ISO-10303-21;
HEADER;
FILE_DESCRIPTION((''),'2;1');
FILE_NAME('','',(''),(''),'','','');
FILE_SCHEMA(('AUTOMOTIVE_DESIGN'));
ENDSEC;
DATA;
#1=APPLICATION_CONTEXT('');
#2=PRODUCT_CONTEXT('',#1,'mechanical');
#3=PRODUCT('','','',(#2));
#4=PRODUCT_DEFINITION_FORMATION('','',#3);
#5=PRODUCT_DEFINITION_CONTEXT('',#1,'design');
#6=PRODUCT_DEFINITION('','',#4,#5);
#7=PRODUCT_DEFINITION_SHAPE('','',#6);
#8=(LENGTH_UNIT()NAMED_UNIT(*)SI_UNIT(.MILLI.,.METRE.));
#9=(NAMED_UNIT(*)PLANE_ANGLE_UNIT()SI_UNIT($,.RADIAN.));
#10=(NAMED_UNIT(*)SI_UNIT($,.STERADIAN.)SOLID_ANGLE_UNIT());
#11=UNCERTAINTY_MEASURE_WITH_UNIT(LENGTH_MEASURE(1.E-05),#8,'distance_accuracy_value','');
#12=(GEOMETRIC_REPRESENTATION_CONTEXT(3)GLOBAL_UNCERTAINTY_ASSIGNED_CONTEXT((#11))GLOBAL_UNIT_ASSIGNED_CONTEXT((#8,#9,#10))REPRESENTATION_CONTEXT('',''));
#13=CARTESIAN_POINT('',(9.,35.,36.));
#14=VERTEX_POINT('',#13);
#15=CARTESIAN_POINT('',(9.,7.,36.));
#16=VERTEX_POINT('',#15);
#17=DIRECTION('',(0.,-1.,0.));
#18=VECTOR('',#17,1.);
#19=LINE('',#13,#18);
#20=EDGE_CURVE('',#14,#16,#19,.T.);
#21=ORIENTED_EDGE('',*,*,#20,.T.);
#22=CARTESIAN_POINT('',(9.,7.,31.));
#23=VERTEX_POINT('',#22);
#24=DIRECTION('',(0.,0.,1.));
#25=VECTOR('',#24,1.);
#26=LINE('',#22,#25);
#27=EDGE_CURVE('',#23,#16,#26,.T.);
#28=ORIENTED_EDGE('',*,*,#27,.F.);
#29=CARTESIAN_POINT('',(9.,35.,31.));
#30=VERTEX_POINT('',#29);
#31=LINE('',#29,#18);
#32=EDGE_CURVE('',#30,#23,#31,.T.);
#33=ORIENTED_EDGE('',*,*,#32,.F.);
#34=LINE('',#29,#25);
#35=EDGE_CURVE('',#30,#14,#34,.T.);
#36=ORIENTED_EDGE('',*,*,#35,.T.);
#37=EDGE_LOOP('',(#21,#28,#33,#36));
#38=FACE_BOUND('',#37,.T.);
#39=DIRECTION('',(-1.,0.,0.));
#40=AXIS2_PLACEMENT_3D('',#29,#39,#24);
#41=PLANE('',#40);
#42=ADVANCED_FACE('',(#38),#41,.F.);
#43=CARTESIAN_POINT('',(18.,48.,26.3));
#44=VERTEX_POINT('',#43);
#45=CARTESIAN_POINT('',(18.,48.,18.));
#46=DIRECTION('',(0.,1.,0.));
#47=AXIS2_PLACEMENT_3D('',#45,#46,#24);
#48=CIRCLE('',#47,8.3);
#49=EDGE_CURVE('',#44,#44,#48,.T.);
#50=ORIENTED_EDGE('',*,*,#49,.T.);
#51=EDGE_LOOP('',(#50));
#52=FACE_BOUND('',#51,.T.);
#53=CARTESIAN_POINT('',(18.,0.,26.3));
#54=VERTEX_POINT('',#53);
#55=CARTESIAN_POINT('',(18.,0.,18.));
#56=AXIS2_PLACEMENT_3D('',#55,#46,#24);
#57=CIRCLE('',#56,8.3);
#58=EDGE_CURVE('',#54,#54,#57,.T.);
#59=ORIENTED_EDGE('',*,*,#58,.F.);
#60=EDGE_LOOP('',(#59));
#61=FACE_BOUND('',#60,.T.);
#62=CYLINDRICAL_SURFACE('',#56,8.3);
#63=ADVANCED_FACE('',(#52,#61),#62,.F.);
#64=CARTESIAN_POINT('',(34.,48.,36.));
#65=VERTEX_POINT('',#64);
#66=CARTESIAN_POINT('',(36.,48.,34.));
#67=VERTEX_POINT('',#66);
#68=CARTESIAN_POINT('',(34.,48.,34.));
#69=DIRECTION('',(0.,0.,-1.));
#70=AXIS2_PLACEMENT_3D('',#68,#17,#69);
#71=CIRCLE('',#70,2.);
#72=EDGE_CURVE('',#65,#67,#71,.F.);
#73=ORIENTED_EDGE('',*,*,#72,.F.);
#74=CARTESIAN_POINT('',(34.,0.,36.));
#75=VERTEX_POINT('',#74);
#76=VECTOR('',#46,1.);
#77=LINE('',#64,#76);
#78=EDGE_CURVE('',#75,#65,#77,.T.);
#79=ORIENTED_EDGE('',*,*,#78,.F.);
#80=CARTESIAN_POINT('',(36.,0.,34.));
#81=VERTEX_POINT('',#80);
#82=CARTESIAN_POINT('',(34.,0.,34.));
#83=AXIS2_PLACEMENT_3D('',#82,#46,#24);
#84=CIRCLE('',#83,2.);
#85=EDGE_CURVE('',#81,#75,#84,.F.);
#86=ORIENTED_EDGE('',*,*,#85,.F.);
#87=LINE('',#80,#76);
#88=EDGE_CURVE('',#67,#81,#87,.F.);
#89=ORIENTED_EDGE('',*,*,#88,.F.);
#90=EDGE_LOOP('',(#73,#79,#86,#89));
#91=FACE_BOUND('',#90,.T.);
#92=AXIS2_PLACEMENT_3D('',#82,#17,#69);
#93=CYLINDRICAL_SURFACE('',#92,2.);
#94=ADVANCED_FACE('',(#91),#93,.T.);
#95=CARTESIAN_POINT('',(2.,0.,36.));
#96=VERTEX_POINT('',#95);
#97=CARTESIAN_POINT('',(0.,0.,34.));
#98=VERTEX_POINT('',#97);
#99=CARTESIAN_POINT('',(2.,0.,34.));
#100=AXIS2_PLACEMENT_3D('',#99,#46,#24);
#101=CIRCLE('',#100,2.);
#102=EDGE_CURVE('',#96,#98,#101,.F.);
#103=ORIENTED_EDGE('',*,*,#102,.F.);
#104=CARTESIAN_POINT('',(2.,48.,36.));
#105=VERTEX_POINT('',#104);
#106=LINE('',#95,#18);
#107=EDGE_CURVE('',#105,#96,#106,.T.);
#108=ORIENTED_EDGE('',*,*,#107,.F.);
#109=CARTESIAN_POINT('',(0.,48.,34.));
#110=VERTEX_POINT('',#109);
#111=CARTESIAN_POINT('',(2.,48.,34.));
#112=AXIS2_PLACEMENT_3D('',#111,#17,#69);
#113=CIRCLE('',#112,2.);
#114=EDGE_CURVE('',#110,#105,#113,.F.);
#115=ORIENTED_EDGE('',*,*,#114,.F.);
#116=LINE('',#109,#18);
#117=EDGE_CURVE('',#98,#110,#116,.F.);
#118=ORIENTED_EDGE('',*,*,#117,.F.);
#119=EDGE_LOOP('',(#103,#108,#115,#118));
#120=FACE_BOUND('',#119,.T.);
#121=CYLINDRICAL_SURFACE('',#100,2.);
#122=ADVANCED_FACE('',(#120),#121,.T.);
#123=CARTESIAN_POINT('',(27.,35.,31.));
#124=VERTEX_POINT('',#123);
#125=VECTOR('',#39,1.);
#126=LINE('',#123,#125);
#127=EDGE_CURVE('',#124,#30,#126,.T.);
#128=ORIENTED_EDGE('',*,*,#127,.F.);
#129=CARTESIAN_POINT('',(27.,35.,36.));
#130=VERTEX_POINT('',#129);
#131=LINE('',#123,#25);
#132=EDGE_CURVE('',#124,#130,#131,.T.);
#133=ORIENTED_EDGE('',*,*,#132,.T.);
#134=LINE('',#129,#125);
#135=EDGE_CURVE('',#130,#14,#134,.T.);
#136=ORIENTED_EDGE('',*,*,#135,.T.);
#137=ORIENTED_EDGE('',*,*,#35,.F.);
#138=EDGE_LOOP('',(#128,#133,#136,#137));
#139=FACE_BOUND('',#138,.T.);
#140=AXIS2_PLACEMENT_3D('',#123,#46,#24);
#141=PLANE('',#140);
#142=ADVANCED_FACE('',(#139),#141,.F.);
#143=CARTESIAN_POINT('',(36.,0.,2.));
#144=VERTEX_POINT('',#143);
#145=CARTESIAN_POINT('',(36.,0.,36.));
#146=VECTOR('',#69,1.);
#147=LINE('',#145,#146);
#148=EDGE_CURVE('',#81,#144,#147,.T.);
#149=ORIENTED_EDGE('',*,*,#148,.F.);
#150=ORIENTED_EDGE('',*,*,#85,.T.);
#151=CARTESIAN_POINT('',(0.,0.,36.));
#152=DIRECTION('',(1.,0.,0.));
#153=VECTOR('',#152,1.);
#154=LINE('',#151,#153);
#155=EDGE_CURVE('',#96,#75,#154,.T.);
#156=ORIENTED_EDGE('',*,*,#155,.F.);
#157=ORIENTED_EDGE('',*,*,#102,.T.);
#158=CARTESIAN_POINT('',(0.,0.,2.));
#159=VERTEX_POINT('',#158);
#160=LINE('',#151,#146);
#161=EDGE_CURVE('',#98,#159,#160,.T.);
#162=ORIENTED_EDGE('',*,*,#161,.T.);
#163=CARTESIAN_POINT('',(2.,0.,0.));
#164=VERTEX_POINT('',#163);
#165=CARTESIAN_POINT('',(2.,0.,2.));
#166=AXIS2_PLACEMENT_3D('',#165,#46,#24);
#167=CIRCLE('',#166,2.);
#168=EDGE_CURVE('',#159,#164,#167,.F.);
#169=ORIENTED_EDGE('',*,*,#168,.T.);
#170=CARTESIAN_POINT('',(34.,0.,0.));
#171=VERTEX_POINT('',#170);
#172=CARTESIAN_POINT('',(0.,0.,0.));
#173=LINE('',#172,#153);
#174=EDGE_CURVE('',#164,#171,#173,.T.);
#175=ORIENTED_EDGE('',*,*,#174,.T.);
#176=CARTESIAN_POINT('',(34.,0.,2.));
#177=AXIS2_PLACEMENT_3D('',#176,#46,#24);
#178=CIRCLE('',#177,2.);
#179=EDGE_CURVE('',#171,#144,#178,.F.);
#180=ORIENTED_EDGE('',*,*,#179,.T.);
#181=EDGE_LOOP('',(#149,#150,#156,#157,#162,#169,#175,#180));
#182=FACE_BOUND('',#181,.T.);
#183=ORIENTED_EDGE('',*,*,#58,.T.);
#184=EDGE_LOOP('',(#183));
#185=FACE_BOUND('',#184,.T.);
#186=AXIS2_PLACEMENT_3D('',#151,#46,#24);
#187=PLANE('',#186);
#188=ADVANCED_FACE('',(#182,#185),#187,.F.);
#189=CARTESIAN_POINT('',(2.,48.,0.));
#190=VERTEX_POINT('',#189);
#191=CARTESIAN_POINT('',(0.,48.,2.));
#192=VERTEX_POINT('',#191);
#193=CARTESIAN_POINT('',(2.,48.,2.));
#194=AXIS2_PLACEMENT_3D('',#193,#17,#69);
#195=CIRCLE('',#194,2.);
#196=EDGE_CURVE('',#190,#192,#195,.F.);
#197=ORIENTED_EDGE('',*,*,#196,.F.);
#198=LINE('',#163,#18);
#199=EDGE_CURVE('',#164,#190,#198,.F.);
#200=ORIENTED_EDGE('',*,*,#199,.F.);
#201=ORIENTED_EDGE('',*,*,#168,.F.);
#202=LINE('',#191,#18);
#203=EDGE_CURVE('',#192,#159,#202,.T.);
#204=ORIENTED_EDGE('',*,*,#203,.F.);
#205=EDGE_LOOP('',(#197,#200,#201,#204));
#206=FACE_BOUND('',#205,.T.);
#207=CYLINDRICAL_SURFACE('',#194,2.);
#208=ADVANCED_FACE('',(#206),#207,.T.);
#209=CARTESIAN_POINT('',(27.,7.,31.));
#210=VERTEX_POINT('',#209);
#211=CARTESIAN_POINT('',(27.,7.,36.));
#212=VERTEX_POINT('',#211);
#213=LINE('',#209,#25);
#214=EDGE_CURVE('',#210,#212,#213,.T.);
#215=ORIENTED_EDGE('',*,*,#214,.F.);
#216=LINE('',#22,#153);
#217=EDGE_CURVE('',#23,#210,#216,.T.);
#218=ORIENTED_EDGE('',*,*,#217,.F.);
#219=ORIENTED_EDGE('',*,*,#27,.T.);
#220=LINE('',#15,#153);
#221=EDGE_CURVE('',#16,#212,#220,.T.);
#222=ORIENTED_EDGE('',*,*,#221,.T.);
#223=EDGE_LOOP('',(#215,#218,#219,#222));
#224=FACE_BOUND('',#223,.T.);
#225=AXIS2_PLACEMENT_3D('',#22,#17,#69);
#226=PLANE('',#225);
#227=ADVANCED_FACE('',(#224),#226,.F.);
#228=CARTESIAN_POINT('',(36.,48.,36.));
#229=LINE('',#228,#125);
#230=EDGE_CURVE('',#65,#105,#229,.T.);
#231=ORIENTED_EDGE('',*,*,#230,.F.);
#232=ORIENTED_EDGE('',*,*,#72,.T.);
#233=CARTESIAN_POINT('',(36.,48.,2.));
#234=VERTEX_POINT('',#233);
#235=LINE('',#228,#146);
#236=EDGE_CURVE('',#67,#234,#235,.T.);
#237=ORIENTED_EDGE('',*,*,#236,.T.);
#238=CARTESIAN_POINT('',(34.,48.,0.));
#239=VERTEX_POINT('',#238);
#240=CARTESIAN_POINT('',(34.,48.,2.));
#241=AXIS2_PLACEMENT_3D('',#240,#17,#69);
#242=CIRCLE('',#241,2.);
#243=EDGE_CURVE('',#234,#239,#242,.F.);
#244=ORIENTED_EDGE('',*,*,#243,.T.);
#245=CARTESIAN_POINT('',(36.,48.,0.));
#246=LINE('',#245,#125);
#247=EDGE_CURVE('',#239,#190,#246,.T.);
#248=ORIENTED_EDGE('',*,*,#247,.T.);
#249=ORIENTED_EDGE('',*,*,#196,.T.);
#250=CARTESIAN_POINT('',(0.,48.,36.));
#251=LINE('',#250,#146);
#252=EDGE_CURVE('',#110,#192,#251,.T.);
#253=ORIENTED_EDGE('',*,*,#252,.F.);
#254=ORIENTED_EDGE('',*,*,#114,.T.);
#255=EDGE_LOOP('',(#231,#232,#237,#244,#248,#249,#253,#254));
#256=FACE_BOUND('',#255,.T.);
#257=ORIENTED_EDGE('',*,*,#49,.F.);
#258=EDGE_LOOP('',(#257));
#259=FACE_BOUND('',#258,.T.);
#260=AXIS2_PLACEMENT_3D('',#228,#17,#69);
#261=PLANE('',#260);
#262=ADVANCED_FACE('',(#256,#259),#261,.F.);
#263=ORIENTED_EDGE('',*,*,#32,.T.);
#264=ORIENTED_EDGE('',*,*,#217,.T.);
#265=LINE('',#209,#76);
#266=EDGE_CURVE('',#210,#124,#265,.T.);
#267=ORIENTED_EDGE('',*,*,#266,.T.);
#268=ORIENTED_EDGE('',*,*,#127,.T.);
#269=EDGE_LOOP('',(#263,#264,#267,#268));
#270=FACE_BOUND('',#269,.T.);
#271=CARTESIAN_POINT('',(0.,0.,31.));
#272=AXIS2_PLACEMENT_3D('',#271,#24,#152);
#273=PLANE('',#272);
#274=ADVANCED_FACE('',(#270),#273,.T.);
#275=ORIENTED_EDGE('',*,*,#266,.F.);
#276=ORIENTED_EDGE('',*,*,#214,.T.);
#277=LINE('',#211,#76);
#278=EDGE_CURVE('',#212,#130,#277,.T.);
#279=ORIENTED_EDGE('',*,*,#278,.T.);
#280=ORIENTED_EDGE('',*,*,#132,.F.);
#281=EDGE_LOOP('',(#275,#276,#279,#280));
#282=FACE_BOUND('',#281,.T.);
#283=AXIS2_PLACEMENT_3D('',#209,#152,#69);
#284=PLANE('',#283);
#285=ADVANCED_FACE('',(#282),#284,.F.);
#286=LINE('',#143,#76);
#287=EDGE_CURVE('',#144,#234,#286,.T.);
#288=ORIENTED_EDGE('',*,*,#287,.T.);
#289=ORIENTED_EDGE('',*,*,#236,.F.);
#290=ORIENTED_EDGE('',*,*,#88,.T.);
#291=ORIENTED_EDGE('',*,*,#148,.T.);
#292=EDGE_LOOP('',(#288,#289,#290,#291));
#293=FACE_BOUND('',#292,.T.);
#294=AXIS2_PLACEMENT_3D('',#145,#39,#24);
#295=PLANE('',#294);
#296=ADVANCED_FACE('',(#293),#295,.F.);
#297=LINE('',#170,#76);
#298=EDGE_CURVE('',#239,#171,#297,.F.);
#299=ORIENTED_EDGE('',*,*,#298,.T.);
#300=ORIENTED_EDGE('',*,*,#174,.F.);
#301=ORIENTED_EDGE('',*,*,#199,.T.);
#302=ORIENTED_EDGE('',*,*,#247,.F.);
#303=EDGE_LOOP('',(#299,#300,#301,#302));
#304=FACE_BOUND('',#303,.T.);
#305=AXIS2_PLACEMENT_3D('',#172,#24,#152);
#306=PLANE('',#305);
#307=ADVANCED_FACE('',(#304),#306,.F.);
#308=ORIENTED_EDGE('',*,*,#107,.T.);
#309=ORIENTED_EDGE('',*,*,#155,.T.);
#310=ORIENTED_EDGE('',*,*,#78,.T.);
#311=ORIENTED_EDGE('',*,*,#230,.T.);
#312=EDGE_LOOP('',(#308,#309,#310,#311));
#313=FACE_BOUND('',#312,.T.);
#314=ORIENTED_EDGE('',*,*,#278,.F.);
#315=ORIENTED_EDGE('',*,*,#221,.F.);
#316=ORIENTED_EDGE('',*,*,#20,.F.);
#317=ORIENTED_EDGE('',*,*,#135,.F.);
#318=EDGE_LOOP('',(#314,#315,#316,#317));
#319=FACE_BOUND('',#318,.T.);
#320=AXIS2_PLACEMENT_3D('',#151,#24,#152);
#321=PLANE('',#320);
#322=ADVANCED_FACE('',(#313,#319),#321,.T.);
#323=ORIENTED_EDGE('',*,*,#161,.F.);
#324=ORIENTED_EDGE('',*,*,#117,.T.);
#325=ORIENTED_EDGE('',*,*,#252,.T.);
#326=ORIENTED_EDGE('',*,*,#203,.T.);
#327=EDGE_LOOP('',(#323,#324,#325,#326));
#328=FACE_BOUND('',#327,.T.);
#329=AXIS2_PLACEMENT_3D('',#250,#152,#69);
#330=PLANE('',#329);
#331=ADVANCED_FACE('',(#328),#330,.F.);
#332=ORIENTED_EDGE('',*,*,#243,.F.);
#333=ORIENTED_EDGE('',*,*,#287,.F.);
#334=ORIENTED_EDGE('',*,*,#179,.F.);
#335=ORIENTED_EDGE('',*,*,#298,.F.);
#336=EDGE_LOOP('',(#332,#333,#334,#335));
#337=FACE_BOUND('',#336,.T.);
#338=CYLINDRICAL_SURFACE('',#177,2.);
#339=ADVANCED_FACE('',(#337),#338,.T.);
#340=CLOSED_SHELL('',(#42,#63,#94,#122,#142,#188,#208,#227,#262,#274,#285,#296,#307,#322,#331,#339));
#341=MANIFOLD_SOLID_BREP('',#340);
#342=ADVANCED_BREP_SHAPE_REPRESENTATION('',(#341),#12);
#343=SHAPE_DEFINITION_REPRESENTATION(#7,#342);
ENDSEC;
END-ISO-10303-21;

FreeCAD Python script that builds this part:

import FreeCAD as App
import Part
import Sketcher
from FreeCAD import Vector


def edges_at(feature, points):
    """Names of the edges that pass closest to the given points."""
    edges = feature.Shape.Edges
    near = lambda p: min(range(len(edges)), key=lambda i: edges[i].distToShape(Part.Vertex(*p))[0])
    return sorted({f"Edge{near(p) + 1}" for p in points})


def add_polygon(sketch, points):
    """Adds a closed chain of lines whose ends are joined by coincident constraints."""
    first, n = sketch.GeometryCount, len(points)
    for a, b in zip(points, points[1:] + points[:1]):
        sketch.addGeometry(Part.LineSegment(App.Vector(*a, 0), App.Vector(*b, 0)), False)
    for i in range(n):
        sketch.addConstraint(Sketcher.Constraint("Coincident", first + i, 2, first + (i + 1) % n, 1))

doc = App.newDocument("Part")
body = doc.addObject("PartDesign::Body", "Body")

# Sketch on XY plane
sketch1 = doc.addObject("Sketcher::SketchObject", "Sketch")
body.addObject(sketch1)
sketch1.AttachmentSupport = (doc.XY_Plane, [""])
sketch1.MapMode = "FlatFace"
add_polygon(sketch1, [(0, 48), (0, 0), (36, 0), (36, 48)])  # lines 0-3
sketch1.addConstraint(Sketcher.Constraint("Vertical", 0))
sketch1.addConstraint(Sketcher.Constraint("Horizontal", 1))
sketch1.addConstraint(Sketcher.Constraint("Vertical", 2))
sketch1.addConstraint(Sketcher.Constraint("Horizontal", 3))
sketch1.addConstraint(Sketcher.Constraint("Coincident", 0, 2, -1, 1))
sketch1.addConstraint(Sketcher.Constraint("DistanceX", 1, 1, 1, 2, 36.0))
sketch1.addConstraint(Sketcher.Constraint("DistanceY", 0, 2, 0, 1, 48.0))
pad1 = doc.addObject("PartDesign::Pad", "Pad")
body.addObject(pad1)
pad1.Profile = sketch1
pad1.Length = 36
doc.recompute()

fillet = doc.addObject("PartDesign::Fillet", "Fillet")
body.addObject(fillet)
fillet.Base = (pad1, edges_at(pad1, [
    (36, 24, 36),
    (0, 24, 36),
    (36, 24, 0),
    (0, 24, 0),
]))
fillet.Radius = 2

# Sketch on XY plane
sketch2 = doc.addObject("Sketcher::SketchObject", "Sketch001")
body.addObject(sketch2)
sketch2.AttachmentSupport = (doc.XY_Plane, [""])
sketch2.MapMode = "FlatFace"
sketch2.AttachmentOffset = App.Placement(Vector(0, 0, 36), App.Rotation())
add_polygon(sketch2, [(9, 35), (9, 7), (27, 7), (27, 35)])  # lines 0-3
sketch2.addConstraint(Sketcher.Constraint("Vertical", 0))
sketch2.addConstraint(Sketcher.Constraint("Horizontal", 1))
sketch2.addConstraint(Sketcher.Constraint("Vertical", 2))
sketch2.addConstraint(Sketcher.Constraint("Horizontal", 3))
sketch2.addConstraint(Sketcher.Constraint("DistanceX", 1, 1, 1, 2, 18.0))
sketch2.addConstraint(Sketcher.Constraint("DistanceY", 0, 2, 0, 1, 28.0))
sketch2.addConstraint(Sketcher.Constraint("DistanceX", -1, 1, 0, 2, 9.0))
sketch2.addConstraint(Sketcher.Constraint("DistanceY", -1, 1, 0, 2, 7.0))
pocket1 = doc.addObject("PartDesign::Pocket", "Pocket")
body.addObject(pocket1)
pocket1.Profile = sketch2
pocket1.Length = 5

# Sketch on XZ plane
sketch3 = doc.addObject("Sketcher::SketchObject", "Sketch002")
body.addObject(sketch3)
sketch3.AttachmentSupport = (doc.XZ_Plane, [""])
sketch3.MapMode = "FlatFace"
sketch3.AttachmentOffset = App.Placement(Vector(0, 0, -48), App.Rotation())
sketch3.addGeometry(Part.Circle(Vector(18, 18, 0), Vector(0, 0, 1), 8), False)
sketch3.addConstraint(Sketcher.Constraint("Diameter", 0, 16.6))
sketch3.addConstraint(Sketcher.Constraint("DistanceX", -1, 1, 0, 3, 18.0))
sketch3.addConstraint(Sketcher.Constraint("DistanceY", -1, 1, 0, 3, 18.0))
pocket2 = doc.addObject("PartDesign::Pocket", "Pocket001")
body.addObject(pocket2)
pocket2.Profile = sketch3
pocket2.Type = "ThroughAll"
pocket2.Reversed = True

doc.recompute()
